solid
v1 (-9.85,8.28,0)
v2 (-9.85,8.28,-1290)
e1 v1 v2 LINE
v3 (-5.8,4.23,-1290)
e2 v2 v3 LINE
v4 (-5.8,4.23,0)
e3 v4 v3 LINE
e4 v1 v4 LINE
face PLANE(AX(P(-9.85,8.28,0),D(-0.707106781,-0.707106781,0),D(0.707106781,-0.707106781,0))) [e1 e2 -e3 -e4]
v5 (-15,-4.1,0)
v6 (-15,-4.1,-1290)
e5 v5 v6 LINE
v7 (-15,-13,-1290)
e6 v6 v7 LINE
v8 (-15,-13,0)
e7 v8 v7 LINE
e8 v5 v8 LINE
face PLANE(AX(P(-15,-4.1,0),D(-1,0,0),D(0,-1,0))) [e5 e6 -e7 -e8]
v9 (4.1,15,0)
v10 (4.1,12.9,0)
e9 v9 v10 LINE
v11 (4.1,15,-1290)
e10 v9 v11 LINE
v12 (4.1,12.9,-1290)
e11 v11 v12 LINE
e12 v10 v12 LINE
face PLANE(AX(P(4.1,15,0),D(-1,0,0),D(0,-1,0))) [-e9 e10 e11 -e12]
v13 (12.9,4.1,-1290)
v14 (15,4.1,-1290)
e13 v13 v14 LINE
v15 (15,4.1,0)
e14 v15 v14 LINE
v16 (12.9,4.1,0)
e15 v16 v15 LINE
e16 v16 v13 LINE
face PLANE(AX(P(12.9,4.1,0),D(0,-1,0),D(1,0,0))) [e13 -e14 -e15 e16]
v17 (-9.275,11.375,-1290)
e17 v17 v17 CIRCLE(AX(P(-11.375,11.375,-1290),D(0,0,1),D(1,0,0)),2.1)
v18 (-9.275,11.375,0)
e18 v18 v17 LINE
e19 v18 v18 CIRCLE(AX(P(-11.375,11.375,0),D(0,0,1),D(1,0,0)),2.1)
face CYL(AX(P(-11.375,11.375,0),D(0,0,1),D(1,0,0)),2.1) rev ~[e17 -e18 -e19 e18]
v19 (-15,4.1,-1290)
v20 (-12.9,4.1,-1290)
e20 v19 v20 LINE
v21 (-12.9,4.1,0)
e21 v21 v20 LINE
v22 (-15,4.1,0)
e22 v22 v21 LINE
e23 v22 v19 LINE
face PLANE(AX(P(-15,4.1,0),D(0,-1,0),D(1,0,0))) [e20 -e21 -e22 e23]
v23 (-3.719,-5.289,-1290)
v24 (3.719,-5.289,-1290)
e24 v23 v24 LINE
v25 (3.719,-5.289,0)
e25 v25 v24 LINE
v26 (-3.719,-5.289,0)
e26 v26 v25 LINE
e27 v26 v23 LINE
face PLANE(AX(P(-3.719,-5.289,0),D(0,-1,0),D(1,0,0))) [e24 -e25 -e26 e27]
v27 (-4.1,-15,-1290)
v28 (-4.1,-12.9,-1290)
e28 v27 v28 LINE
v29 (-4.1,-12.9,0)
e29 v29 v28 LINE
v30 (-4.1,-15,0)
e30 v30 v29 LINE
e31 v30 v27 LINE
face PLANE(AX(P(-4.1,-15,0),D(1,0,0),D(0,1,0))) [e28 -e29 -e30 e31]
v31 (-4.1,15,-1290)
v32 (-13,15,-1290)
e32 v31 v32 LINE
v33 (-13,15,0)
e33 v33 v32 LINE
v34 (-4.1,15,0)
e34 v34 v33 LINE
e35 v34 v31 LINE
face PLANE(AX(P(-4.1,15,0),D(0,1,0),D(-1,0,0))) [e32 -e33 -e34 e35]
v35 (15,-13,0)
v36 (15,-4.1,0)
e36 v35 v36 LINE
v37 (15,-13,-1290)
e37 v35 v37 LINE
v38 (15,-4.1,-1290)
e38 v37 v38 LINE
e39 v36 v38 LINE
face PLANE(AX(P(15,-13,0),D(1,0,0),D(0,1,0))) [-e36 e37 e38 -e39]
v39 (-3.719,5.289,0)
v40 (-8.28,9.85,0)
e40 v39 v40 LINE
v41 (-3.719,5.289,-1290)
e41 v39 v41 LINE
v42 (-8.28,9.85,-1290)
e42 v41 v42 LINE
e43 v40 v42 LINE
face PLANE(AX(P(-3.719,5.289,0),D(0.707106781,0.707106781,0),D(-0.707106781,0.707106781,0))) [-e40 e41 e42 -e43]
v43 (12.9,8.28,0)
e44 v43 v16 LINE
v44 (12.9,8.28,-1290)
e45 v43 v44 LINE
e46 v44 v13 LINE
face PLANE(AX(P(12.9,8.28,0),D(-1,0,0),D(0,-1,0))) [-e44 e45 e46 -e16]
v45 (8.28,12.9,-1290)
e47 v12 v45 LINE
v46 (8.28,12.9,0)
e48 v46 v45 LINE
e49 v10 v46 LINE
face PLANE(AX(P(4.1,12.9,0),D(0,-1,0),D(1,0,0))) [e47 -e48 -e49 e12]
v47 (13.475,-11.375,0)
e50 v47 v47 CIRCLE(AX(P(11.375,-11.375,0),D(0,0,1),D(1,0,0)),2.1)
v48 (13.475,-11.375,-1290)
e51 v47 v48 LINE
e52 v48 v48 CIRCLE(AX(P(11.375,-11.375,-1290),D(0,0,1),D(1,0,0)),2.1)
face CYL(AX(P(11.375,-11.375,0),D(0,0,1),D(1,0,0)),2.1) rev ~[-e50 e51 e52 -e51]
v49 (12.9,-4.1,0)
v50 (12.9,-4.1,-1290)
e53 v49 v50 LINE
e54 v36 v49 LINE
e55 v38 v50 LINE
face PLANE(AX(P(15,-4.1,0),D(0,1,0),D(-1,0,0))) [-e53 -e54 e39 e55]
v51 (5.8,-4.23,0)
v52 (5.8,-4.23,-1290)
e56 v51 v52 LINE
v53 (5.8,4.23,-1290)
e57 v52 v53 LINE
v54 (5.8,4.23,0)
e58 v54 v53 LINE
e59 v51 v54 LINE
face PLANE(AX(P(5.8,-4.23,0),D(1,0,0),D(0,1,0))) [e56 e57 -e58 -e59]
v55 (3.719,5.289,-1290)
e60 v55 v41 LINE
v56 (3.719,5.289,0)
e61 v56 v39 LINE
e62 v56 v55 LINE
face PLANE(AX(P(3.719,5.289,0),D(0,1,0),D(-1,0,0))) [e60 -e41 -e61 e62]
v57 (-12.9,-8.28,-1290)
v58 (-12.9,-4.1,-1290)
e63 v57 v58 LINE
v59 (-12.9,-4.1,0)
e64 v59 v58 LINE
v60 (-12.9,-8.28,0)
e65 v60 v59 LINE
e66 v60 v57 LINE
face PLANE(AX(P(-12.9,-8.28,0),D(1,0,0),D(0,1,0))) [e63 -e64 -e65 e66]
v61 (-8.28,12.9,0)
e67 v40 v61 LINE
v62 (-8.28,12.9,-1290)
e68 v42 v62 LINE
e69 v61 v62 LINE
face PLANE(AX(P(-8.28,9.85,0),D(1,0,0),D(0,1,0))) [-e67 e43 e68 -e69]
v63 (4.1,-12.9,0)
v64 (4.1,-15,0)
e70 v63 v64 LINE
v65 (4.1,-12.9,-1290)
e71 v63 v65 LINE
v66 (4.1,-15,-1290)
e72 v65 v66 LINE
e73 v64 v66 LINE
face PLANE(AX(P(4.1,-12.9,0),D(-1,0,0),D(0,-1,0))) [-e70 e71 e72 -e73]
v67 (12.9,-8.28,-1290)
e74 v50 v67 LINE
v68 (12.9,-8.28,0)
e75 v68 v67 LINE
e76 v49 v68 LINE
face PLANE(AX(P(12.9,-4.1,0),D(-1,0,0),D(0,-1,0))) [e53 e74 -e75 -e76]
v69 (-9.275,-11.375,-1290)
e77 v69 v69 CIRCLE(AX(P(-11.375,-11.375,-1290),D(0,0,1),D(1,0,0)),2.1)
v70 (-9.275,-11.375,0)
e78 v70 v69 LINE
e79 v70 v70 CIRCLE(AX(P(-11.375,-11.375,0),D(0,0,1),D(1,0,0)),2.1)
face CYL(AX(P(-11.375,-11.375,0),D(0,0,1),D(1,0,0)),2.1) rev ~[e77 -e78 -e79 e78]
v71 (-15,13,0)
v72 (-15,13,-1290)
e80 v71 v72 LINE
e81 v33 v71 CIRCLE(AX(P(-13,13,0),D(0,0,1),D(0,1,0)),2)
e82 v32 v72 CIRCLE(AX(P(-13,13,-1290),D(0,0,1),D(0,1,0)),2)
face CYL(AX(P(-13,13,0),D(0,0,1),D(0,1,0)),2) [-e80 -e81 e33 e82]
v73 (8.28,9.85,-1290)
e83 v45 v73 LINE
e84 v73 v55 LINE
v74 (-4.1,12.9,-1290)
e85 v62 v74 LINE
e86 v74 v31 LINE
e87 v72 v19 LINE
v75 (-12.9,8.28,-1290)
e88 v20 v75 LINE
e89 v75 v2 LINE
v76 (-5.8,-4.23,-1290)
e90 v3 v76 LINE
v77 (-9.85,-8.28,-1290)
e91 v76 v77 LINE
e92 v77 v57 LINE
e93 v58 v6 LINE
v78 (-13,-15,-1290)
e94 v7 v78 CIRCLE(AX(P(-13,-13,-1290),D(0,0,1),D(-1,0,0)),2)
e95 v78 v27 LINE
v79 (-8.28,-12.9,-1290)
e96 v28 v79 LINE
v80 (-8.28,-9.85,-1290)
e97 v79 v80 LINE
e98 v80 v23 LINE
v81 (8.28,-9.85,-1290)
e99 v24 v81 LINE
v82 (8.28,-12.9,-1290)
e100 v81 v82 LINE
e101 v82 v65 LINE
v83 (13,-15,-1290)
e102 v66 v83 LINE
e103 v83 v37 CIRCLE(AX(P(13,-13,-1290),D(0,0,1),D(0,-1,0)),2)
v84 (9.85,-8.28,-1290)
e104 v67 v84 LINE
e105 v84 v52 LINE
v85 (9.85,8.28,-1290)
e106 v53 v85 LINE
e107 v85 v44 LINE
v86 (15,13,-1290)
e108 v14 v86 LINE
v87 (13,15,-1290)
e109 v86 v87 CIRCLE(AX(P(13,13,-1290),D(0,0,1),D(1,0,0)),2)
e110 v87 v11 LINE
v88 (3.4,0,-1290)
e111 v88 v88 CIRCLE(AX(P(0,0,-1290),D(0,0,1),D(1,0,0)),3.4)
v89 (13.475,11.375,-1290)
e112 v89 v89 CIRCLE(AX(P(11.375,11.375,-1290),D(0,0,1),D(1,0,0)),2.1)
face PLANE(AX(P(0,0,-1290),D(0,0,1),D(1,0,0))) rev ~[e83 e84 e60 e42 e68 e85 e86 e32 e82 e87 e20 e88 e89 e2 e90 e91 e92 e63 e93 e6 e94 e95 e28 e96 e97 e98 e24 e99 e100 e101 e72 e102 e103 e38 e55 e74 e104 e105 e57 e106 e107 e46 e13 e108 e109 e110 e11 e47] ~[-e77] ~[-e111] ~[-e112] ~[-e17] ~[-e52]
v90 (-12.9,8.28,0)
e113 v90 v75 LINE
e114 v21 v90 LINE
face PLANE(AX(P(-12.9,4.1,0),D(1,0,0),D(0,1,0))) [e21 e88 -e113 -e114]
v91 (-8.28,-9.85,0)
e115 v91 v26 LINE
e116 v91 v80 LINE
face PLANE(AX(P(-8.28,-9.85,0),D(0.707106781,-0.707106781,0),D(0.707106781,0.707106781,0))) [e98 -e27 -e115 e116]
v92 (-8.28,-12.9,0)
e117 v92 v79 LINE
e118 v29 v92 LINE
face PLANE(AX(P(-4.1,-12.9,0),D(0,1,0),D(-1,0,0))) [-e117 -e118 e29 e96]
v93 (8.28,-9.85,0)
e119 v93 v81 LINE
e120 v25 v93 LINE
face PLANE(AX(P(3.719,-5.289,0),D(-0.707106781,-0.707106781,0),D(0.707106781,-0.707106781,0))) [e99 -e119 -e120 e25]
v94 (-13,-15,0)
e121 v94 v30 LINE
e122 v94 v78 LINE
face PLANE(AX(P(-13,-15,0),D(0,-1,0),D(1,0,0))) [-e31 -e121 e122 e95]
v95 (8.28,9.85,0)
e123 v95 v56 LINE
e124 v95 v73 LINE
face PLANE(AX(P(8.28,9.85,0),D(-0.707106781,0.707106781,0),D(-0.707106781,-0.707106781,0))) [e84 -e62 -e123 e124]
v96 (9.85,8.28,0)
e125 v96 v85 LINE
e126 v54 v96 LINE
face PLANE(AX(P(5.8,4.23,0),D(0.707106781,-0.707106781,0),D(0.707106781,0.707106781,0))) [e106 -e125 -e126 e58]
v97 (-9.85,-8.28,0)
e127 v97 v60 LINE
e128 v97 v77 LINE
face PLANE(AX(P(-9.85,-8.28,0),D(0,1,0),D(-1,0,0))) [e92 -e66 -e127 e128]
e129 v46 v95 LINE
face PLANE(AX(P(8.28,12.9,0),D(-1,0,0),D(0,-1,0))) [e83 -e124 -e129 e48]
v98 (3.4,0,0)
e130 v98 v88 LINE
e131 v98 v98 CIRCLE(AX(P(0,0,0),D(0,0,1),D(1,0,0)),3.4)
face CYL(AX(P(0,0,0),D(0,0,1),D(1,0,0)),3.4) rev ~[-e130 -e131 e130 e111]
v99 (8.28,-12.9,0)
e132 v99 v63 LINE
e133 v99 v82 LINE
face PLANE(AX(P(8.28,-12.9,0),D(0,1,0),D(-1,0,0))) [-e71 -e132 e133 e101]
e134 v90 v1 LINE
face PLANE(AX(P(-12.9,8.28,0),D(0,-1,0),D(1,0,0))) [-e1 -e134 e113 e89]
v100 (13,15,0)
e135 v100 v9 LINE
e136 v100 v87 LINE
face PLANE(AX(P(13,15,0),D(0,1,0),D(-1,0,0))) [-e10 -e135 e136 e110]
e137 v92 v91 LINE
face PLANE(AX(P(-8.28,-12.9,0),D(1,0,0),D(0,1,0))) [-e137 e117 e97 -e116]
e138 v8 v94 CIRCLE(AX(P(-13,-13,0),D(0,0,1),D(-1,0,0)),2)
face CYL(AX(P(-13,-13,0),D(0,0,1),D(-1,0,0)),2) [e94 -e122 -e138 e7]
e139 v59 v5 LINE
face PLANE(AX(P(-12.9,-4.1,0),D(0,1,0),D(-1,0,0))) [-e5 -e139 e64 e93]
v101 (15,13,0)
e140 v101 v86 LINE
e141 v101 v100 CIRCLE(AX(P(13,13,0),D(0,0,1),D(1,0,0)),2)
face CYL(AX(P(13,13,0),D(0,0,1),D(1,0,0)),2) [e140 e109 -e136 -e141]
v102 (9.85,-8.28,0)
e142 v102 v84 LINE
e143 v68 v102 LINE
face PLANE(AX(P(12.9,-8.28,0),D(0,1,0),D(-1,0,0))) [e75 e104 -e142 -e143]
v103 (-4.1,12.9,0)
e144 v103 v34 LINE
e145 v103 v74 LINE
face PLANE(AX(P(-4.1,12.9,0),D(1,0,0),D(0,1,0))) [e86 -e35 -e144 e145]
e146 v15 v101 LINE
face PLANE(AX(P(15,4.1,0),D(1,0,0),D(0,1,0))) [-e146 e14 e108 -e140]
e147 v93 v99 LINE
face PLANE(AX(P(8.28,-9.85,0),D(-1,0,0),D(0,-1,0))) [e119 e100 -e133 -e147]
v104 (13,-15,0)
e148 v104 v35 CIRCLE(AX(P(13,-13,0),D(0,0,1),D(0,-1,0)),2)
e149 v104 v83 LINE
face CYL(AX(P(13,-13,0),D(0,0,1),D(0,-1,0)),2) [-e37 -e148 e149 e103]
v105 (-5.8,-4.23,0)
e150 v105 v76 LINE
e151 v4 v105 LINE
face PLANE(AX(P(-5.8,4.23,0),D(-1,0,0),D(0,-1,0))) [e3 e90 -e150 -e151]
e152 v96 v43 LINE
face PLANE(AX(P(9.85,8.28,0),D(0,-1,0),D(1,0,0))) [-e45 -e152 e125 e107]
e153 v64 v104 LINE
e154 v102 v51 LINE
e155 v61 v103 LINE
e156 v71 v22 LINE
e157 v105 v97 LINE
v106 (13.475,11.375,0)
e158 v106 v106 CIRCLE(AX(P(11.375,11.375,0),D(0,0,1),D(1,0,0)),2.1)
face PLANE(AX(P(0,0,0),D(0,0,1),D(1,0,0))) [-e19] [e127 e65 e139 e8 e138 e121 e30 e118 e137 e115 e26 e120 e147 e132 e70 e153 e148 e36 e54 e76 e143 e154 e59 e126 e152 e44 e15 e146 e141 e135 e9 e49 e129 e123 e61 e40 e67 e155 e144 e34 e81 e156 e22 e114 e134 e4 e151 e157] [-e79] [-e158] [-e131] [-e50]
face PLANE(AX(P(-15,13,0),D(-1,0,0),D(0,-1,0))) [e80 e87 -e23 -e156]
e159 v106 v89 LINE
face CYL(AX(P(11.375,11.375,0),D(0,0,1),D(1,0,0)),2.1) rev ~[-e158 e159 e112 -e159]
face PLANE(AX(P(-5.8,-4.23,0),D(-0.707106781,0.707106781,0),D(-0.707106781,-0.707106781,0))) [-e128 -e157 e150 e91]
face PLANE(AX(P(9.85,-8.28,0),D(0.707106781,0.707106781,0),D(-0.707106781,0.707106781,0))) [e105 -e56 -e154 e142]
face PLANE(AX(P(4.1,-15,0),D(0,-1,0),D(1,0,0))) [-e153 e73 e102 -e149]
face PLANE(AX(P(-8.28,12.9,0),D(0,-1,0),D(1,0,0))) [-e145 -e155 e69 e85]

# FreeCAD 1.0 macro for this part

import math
import FreeCAD as App
import Part
import Sketcher
from FreeCAD import Vector
Q = App.Units.Quantity

doc = App.newDocument("Part")
body = doc.addObject("PartDesign::Body", "Body")

# Sketch on XY plane
sketch1 = body.newObject("Sketcher::SketchObject", "Sketch")
sketch1.AttachmentSupport = (doc.getObject("XY_Plane"), [""])
sketch1.MapMode = "FlatFace"
sketch1.addGeometry([
    Part.LineSegment(Vector(-15, 13, 0), Vector(-15, 4.1, 0)),  # 0
    Part.LineSegment(Vector(-15, 4.1, 0), Vector(-12.9, 4.1, 0)),  # 1
    Part.LineSegment(Vector(-12.9, 4.1, 0), Vector(-12.9, 8.3, 0)),  # 2
    Part.LineSegment(Vector(-12.9, 8.3, 0), Vector(-9.8, 8.3, 0)),  # 3
    Part.LineSegment(Vector(-9.8, 8.3, 0), Vector(-5.8, 4.2, 0)),  # 4
    Part.LineSegment(Vector(-5.8, 4.2, 0), Vector(-5.8, -4.2, 0)),  # 5
    Part.LineSegment(Vector(-5.8, -4.2, 0), Vector(-9.8, -8.3, 0)),  # 6
    Part.LineSegment(Vector(-9.8, -8.3, 0), Vector(-12.9, -8.3, 0)),  # 7
    Part.LineSegment(Vector(-12.9, -8.3, 0), Vector(-12.9, -4.1, 0)),  # 8
    Part.LineSegment(Vector(-12.9, -4.1, 0), Vector(-15, -4.1, 0)),  # 9
    Part.LineSegment(Vector(-15, -4.1, 0), Vector(-15, -13, 0)),  # 10
    Part.ArcOfCircle(Part.Circle(Vector(-13, -13, 0), Vector(0, 0, 1), 2), math.radians(180), math.radians(270)),  # 11
    Part.LineSegment(Vector(-13, -15, 0), Vector(-4.1, -15, 0)),  # 12
    Part.LineSegment(Vector(-4.1, -15, 0), Vector(-4.1, -12.9, 0)),  # 13
    Part.LineSegment(Vector(-4.1, -12.9, 0), Vector(-8.3, -12.9, 0)),  # 14
    Part.LineSegment(Vector(-8.3, -12.9, 0), Vector(-8.3, -9.8, 0)),  # 15
    Part.LineSegment(Vector(-8.3, -9.8, 0), Vector(-3.7, -5.3, 0)),  # 16
    Part.LineSegment(Vector(-3.7, -5.3, 0), Vector(3.7, -5.3, 0)),  # 17
    Part.LineSegment(Vector(3.7, -5.3, 0), Vector(8.3, -9.8, 0)),  # 18
    Part.LineSegment(Vector(8.3, -9.8, 0), Vector(8.3, -12.9, 0)),  # 19
    Part.LineSegment(Vector(8.3, -12.9, 0), Vector(4.1, -12.9, 0)),  # 20
    Part.LineSegment(Vector(4.1, -12.9, 0), Vector(4.1, -15, 0)),  # 21
    Part.LineSegment(Vector(4.1, -15, 0), Vector(13, -15, 0)),  # 22
    Part.ArcOfCircle(Part.Circle(Vector(13, -13, 0), Vector(0, 0, 1), 2), math.radians(-90), math.radians(0)),  # 23
    Part.LineSegment(Vector(15, -13, 0), Vector(15, -4.1, 0)),  # 24
    Part.LineSegment(Vector(15, -4.1, 0), Vector(12.9, -4.1, 0)),  # 25
    Part.LineSegment(Vector(12.9, -4.1, 0), Vector(12.9, -8.3, 0)),  # 26
    Part.LineSegment(Vector(12.9, -8.3, 0), Vector(9.8, -8.3, 0)),  # 27
    Part.LineSegment(Vector(9.8, -8.3, 0), Vector(5.8, -4.2, 0)),  # 28
    Part.LineSegment(Vector(5.8, -4.2, 0), Vector(5.8, 4.2, 0)),  # 29
    Part.LineSegment(Vector(5.8, 4.2, 0), Vector(9.8, 8.3, 0)),  # 30
    Part.LineSegment(Vector(9.8, 8.3, 0), Vector(12.9, 8.3, 0)),  # 31
    Part.LineSegment(Vector(12.9, 8.3, 0), Vector(12.9, 4.1, 0)),  # 32
    Part.LineSegment(Vector(12.9, 4.1, 0), Vector(15, 4.1, 0)),  # 33
    Part.LineSegment(Vector(15, 4.1, 0), Vector(15, 13, 0)),  # 34
    Part.ArcOfCircle(Part.Circle(Vector(13, 13, 0), Vector(0, 0, 1), 2), math.radians(0), math.radians(90)),  # 35
    Part.LineSegment(Vector(13, 15, 0), Vector(4.1, 15, 0)),  # 36
    Part.LineSegment(Vector(4.1, 15, 0), Vector(4.1, 12.9, 0)),  # 37
    Part.LineSegment(Vector(4.1, 12.9, 0), Vector(8.3, 12.9, 0)),  # 38
    Part.LineSegment(Vector(8.3, 12.9, 0), Vector(8.3, 9.8, 0)),  # 39
    Part.LineSegment(Vector(8.3, 9.8, 0), Vector(3.7, 5.3, 0)),  # 40
    Part.LineSegment(Vector(3.7, 5.3, 0), Vector(-3.7, 5.3, 0)),  # 41
    Part.LineSegment(Vector(-3.7, 5.3, 0), Vector(-8.3, 9.8, 0)),  # 42
    Part.LineSegment(Vector(-8.3, 9.8, 0), Vector(-8.3, 12.9, 0)),  # 43
    Part.LineSegment(Vector(-8.3, 12.9, 0), Vector(-4.1, 12.9, 0)),  # 44
    Part.LineSegment(Vector(-4.1, 12.9, 0), Vector(-4.1, 15, 0)),  # 45
    Part.LineSegment(Vector(-4.1, 15, 0), Vector(-13, 15, 0)),  # 46
    Part.ArcOfCircle(Part.Circle(Vector(-13, 13, 0), Vector(0, 0, 1), 2), math.radians(90), math.radians(180)),  # 47
    Part.Circle(Vector(-11.4, -11.4, 0), Vector(0, 0, 1), 2.1),  # 48
    Part.Circle(Vector(11.4, -11.4, 0), Vector(0, 0, 1), 2.1),  # 49
    Part.Circle(Vector(-11.4, 11.4, 0), Vector(0, 0, 1), 2.1),  # 50
    Part.Circle(Vector(0, 0, 0), Vector(0, 0, 1), 3.4),  # 51
    Part.Circle(Vector(11.4, 11.4, 0), Vector(0, 0, 1), 2.1),  # 52
], False)
sketch1.addConstraint([
    Sketcher.Constraint("Coincident", 0, 2, 1, 1),
    Sketcher.Constraint("Coincident", 1, 2, 2, 1),
    Sketcher.Constraint("Coincident", 2, 2, 3, 1),
    Sketcher.Constraint("Coincident", 3, 2, 4, 1),
    Sketcher.Constraint("Coincident", 4, 2, 5, 1),
    Sketcher.Constraint("Coincident", 5, 2, 6, 1),
    Sketcher.Constraint("Coincident", 6, 2, 7, 1),
    Sketcher.Constraint("Coincident", 7, 2, 8, 1),
    Sketcher.Constraint("Coincident", 8, 2, 9, 1),
    Sketcher.Constraint("Coincident", 9, 2, 10, 1),
    Sketcher.Constraint("Tangent", 10, 2, 11, 1),
    Sketcher.Constraint("Tangent", 11, 2, 12, 1),
    Sketcher.Constraint("Coincident", 12, 2, 13, 1),
    Sketcher.Constraint("Coincident", 13, 2, 14, 1),
    Sketcher.Constraint("Coincident", 14, 2, 15, 1),
    Sketcher.Constraint("Coincident", 15, 2, 16, 1),
    Sketcher.Constraint("Coincident", 16, 2, 17, 1),
    Sketcher.Constraint("Coincident", 17, 2, 18, 1),
    Sketcher.Constraint("Coincident", 18, 2, 19, 1),
    Sketcher.Constraint("Coincident", 19, 2, 20, 1),
    Sketcher.Constraint("Coincident", 20, 2, 21, 1),
    Sketcher.Constraint("Coincident", 21, 2, 22, 1),
    Sketcher.Constraint("Tangent", 22, 2, 23, 1),
    Sketcher.Constraint("Tangent", 23, 2, 24, 1),
    Sketcher.Constraint("Coincident", 24, 2, 25, 1),
    Sketcher.Constraint("Coincident", 25, 2, 26, 1),
    Sketcher.Constraint("Coincident", 26, 2, 27, 1),
    Sketcher.Constraint("Coincident", 27, 2, 28, 1),
    Sketcher.Constraint("Coincident", 28, 2, 29, 1),
    Sketcher.Constraint("Coincident", 29, 2, 30, 1),
    Sketcher.Constraint("Coincident", 30, 2, 31, 1),
    Sketcher.Constraint("Coincident", 31, 2, 32, 1),
    Sketcher.Constraint("Coincident", 32, 2, 33, 1),
    Sketcher.Constraint("Coincident", 33, 2, 34, 1),
    Sketcher.Constraint("Tangent", 34, 2, 35, 1),
    Sketcher.Constraint("Tangent", 35, 2, 36, 1),
    Sketcher.Constraint("Coincident", 36, 2, 37, 1),
    Sketcher.Constraint("Coincident", 37, 2, 38, 1),
    Sketcher.Constraint("Coincident", 38, 2, 39, 1),
    Sketcher.Constraint("Coincident", 39, 2, 40, 1),
    Sketcher.Constraint("Coincident", 40, 2, 41, 1),
    Sketcher.Constraint("Coincident", 41, 2, 42, 1),
    Sketcher.Constraint("Coincident", 42, 2, 43, 1),
    Sketcher.Constraint("Coincident", 43, 2, 44, 1),
    Sketcher.Constraint("Coincident", 44, 2, 45, 1),
    Sketcher.Constraint("Coincident", 45, 2, 46, 1),
    Sketcher.Constraint("Tangent", 46, 2, 47, 1),
    Sketcher.Constraint("Tangent", 47, 2, 0, 1),
    Sketcher.Constraint("Vertical", 0),
    Sketcher.Constraint("Horizontal", 1),
    Sketcher.Constraint("Vertical", 2),
    Sketcher.Constraint("Horizontal", 3),
    Sketcher.Constraint("Vertical", 5),
    Sketcher.Constraint("Horizontal", 7),
    Sketcher.Constraint("Vertical", 8),
    Sketcher.Constraint("Horizontal", 9),
    Sketcher.Constraint("Vertical", 10),
    Sketcher.Constraint("Horizontal", 12),
    Sketcher.Constraint("Vertical", 13),
    Sketcher.Constraint("Horizontal", 14),
    Sketcher.Constraint("Vertical", 15),
    Sketcher.Constraint("Horizontal", 17),
    Sketcher.Constraint("Vertical", 19),
    Sketcher.Constraint("Horizontal", 20),
    Sketcher.Constraint("Vertical", 21),
    Sketcher.Constraint("Horizontal", 22),
    Sketcher.Constraint("Vertical", 24),
    Sketcher.Constraint("Horizontal", 25),
    Sketcher.Constraint("Vertical", 26),
    Sketcher.Constraint("Horizontal", 27),
    Sketcher.Constraint("Vertical", 29),
    Sketcher.Constraint("Horizontal", 31),
    Sketcher.Constraint("Vertical", 32),
    Sketcher.Constraint("Horizontal", 33),
    Sketcher.Constraint("Vertical", 34),
    Sketcher.Constraint("Horizontal", 36),
    Sketcher.Constraint("Vertical", 37),
    Sketcher.Constraint("Horizontal", 38),
    Sketcher.Constraint("Vertical", 39),
    Sketcher.Constraint("Horizontal", 41),
    Sketcher.Constraint("Vertical", 43),
    Sketcher.Constraint("Horizontal", 44),
    Sketcher.Constraint("Vertical", 45),
    Sketcher.Constraint("Horizontal", 46),
    Sketcher.Constraint("Coincident", 51, 3, -1, 1),
    Sketcher.Constraint("Equal", 11, 23),
    Sketcher.Constraint("Equal", 23, 35),
    Sketcher.Constraint("Equal", 35, 47),
    Sketcher.Constraint("Equal", 48, 49),
    Sketcher.Constraint("Equal", 49, 50),
    Sketcher.Constraint("Equal", 50, 52),
    Sketcher.Constraint("Symmetric", 11, 3, 35, 3, -1, 1),
    Sketcher.Constraint("Symmetric", 23, 3, 47, 3, -1, 1),
    Sketcher.Constraint("Symmetric", 49, 3, 50, 3, -1, 1),
    Sketcher.Constraint("Symmetric", 48, 3, 52, 3, -1, 1),
    Sketcher.Constraint("Symmetric", 1, 2, 25, 2, -1, 1),
    Sketcher.Constraint("Symmetric", 3, 2, 27, 2, -1, 1),
    Sketcher.Constraint("Symmetric", 4, 2, 28, 2, -1, 1),
    Sketcher.Constraint("Symmetric", 6, 2, 30, 2, -1, 1),
    Sketcher.Constraint("Symmetric", 8, 2, 32, 2, -1, 1),
    Sketcher.Constraint("Symmetric", 13, 2, 37, 2, -1, 1),
    Sketcher.Constraint("Symmetric", 15, 2, 39, 2, -1, 1),
    Sketcher.Constraint("Symmetric", 16, 2, 40, 2, -1, 1),
    Sketcher.Constraint("Symmetric", 18, 2, 42, 2, -1, 1),
    Sketcher.Constraint("Symmetric", 20, 2, 44, 2, -1, 1),
    Sketcher.Constraint("Symmetric", 11, 3, 23, 3, -2),
    Sketcher.Constraint("Symmetric", 48, 3, 49, 3, -2),
    Sketcher.Constraint("Symmetric", 15, 2, 18, 2, -2),
    Sketcher.Constraint("Symmetric", 13, 2, 20, 2, -2),
    Sketcher.Constraint("Symmetric", 8, 2, 25, 2, -2),
    Sketcher.Constraint("Symmetric", 6, 2, 27, 2, -2),
    Sketcher.Constraint("Perpendicular", 4, 6),
    Sketcher.Constraint("Parallel", 6, 16),
    Sketcher.Constraint("Perpendicular", 16, 18),
    Sketcher.Constraint("Perpendicular", 28, 30),
    Sketcher.Constraint("Perpendicular", 40, 42),
    Sketcher.Constraint("Horizontal", 5, 2, 28, 2),
    Sketcher.Constraint("Equal", 46, 0),
    Sketcher.Constraint("Equal", 44, 2),
    Sketcher.Constraint("Equal", 33, 13),
    Sketcher.Constraint("Equal", 31, 15),
    Sketcher.Constraint("Radius", 11, Q("2 mm")),
    Sketcher.Constraint("Diameter", 48, Q("4.2 mm")),
    Sketcher.Constraint("Diameter", 51, Q("6.8 mm")),
    Sketcher.Constraint("DistanceX", 1, 1, 1, 2, Q("2.1 mm")),
    Sketcher.Constraint("DistanceX", 12, 1, 12, 2, Q("8.9 mm")),
    Sketcher.Constraint("DistanceX", 11, 3, -1, 1, Q("13 mm")),
    Sketcher.Constraint("DistanceY", 11, 3, -1, 1, Q("13 mm")),
    Sketcher.Constraint("DistanceX", 3, 1, 3, 2, Q("3.05 mm")),
    Sketcher.Constraint("DistanceX", 14, 2, 14, 1, Q("4.18 mm")),
    Sketcher.Constraint("DistanceY", 5, 2, 5, 1, Q("8.46 mm")),
    Sketcher.Constraint("DistanceX", 17, 1, 17, 2, Q("7.438 mm")),
    Sketcher.Constraint("DistanceX", 48, 3, 49, 3, Q("22.75 mm")),
    Sketcher.Constraint("DistanceY", 48, 3, 50, 3, Q("22.75 mm")),
])
pad1 = body.newObject("PartDesign::Pad", "Pad")
pad1.Profile = sketch1
pad1.Length = 1290
pad1.Reversed = True

doc.recompute()
